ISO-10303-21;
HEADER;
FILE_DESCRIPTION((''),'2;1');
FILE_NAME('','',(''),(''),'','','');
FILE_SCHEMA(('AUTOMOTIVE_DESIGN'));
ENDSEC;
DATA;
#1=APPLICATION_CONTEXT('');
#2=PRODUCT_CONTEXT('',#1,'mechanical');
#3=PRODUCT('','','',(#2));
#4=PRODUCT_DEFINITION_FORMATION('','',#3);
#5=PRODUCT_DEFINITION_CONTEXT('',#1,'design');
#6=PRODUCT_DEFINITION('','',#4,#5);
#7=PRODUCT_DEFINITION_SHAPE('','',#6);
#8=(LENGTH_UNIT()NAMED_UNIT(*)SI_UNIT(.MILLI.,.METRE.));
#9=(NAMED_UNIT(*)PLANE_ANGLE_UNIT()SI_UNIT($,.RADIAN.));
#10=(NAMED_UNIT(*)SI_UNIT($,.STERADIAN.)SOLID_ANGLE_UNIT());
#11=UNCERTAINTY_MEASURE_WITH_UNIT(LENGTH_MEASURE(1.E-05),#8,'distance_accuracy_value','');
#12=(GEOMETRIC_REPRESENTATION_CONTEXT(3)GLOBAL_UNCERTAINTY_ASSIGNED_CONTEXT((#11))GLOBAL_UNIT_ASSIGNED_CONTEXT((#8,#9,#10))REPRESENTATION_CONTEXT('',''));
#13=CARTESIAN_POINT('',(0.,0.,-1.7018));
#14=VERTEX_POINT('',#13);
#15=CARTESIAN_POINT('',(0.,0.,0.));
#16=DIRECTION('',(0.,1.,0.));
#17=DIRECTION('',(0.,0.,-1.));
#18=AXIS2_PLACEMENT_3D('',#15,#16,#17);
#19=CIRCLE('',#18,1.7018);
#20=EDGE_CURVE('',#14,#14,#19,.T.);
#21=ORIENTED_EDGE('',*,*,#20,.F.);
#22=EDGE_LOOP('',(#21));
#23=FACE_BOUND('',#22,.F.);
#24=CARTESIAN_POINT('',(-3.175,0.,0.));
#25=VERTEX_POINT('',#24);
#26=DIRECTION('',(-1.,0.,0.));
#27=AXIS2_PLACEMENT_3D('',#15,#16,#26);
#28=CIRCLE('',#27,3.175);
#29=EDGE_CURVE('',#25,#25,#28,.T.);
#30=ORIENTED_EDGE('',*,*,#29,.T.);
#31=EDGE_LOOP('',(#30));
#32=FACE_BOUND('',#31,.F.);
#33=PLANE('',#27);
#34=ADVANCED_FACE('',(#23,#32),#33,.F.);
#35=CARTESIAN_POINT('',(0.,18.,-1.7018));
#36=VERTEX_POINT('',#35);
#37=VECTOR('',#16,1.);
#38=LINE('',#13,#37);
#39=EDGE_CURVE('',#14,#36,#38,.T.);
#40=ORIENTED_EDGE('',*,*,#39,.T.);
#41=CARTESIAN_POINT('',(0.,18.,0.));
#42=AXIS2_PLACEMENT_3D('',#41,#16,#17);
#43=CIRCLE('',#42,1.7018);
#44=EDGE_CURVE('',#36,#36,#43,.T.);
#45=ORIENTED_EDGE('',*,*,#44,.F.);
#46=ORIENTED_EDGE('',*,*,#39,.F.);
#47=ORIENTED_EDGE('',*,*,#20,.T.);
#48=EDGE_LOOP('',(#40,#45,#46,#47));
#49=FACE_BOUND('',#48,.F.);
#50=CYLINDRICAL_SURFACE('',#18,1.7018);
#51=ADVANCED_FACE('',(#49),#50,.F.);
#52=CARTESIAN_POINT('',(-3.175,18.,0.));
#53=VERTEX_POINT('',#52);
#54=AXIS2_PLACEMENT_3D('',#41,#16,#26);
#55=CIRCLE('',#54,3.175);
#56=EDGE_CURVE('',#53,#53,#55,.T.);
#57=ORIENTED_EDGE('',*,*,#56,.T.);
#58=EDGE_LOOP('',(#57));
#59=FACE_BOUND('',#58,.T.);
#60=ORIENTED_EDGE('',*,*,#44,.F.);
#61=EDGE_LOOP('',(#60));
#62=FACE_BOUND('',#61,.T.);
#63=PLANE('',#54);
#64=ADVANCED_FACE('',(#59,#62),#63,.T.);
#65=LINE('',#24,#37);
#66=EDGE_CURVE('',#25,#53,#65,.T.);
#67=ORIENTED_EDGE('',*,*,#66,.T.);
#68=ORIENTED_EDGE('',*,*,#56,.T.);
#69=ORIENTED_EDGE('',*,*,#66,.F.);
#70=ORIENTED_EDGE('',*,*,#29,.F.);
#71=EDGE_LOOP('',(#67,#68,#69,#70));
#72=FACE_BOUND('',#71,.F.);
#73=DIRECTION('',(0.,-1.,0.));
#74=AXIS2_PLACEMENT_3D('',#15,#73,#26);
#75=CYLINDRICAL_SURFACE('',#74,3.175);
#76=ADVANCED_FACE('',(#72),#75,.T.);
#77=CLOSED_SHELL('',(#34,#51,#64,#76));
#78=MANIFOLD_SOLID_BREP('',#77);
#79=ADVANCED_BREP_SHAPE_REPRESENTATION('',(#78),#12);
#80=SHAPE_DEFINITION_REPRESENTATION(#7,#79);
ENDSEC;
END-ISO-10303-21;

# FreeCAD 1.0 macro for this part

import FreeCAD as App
import Part
import Sketcher
Q = App.Units.Quantity

doc = App.newDocument("Part")
body = doc.addObject("PartDesign::Body", "Body")

# Sketch on XZ plane
sketch1 = body.newObject("Sketcher::SketchObject", "Sketch")
sketch1.AttachmentSupport = (doc.getObject("XZ_Plane"), [""])
sketch1.MapMode = "FlatFace"
sketch1.addGeometry(Part.Circle(App.Vector(0, 0, 0), App.Vector(0, 0, 1), 3.175), False)
sketch1.addConstraint([
    Sketcher.Constraint("Coincident", 0, 3, -1, 1),
    Sketcher.Constraint("Diameter", 0, Q("0.25 in")),
])
pad1 = body.newObject("PartDesign::Pad", "Pad")
pad1.Profile = sketch1
pad1.Length = 18
pad1.Reversed = True

# Sketch on XZ plane
sketch2 = body.newObject("Sketcher::SketchObject", "Sketch001")
sketch2.AttachmentSupport = (doc.getObject("XZ_Plane"), [""])
sketch2.MapMode = "FlatFace"
sketch2.addGeometry(Part.Circle(App.Vector(0, 0, 0), App.Vector(0, 0, 1), 1.7018), False)
sketch2.addConstraint([
    Sketcher.Constraint("Coincident", 0, 3, -1, 1),
    Sketcher.Constraint("Diameter", 0, Q("0.134 in")),
])
doc.recompute()
hole = body.newObject("PartDesign::Hole", "Hole")
hole.Profile = sketch2
hole.ThreadType = "None"
hole.Diameter = Q("0.134 in")
hole.DepthType = "ThroughAll"

doc.recompute()
